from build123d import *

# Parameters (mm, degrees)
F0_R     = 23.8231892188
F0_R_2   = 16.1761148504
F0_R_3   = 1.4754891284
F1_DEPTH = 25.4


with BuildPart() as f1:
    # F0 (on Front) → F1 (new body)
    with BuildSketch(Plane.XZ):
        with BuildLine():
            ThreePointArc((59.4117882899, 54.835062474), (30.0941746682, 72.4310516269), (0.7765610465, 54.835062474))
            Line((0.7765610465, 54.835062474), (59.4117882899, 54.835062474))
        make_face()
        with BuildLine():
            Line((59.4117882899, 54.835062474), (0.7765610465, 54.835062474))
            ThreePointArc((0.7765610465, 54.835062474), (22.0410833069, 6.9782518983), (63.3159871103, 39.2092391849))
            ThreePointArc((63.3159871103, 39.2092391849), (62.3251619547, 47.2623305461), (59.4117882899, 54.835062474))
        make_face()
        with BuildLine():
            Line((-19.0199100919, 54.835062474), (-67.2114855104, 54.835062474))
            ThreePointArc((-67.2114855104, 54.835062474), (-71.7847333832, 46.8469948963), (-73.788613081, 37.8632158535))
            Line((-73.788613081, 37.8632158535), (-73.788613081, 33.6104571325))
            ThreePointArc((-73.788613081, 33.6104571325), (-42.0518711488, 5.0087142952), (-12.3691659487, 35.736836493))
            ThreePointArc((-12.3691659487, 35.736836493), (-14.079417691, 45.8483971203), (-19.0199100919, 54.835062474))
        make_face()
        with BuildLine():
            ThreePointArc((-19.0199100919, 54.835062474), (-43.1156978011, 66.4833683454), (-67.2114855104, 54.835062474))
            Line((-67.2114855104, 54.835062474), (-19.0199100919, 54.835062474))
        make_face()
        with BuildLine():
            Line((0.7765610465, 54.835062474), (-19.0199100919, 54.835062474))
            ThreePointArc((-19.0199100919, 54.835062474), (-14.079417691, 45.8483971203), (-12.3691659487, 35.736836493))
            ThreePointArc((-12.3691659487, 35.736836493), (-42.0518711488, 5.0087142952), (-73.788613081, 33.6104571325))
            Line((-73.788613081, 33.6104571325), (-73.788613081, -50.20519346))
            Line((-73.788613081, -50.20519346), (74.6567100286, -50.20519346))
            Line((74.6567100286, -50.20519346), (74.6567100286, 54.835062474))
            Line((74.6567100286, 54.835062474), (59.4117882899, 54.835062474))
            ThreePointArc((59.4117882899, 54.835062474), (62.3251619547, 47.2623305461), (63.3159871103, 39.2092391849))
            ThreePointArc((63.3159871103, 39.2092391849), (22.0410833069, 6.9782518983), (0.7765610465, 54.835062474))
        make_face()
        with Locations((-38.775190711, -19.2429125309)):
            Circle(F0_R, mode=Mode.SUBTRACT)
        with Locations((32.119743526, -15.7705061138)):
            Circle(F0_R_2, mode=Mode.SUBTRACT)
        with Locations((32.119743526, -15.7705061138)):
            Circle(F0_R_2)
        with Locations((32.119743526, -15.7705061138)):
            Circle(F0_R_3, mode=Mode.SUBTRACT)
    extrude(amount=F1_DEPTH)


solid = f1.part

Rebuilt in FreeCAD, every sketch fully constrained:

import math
import FreeCAD as App
import Part
import Sketcher
Q = App.Units.Quantity

doc = App.newDocument("Part")
body = doc.addObject("PartDesign::Body", "Body")

# Sketch on XZ plane
sketch1 = body.newObject("Sketcher::SketchObject", "Sketch")
sketch1.AttachmentSupport = (doc.getObject("XZ_Plane"), [""])
sketch1.MapMode = "FlatFace"
sketch1.addGeometry(Part.ArcOfCircle(Part.Circle(App.Vector(30.1, 39.2, 0), App.Vector(0, 0, 1), 33.2), math.radians(28), math.radians(152)), False)
sketch1.addGeometry(Part.LineSegment(App.Vector(0.8, 54.8, 0), App.Vector(-19, 54.8, 0)), False)
sketch1.addGeometry(Part.ArcOfCircle(Part.Circle(App.Vector(-43.1, 35.7, 0), App.Vector(0, 0, 1), 30.7), math.radians(38), math.radians(142)), False)
sketch1.addGeometry(Part.ArcOfCircle(Part.Circle(App.Vector(-43.1, 35.7, 0), App.Vector(0, 0, 1), 30.7), math.radians(142), math.radians(176)), False)
sketch1.addGeometry(Part.LineSegment(App.Vector(-73.8, 37.9, 0), App.Vector(-73.8, -50.2, 0)), False)
sketch1.addGeometry(Part.LineSegment(App.Vector(-73.8, -50.2, 0), App.Vector(74.7, -50.2, 0)), False)
sketch1.addGeometry(Part.LineSegment(App.Vector(74.7, -50.2, 0), App.Vector(74.7, 54.8, 0)), False)
sketch1.addGeometry(Part.LineSegment(App.Vector(74.7, 54.8, 0), App.Vector(59.4, 54.8, 0)), False)
sketch1.addGeometry(Part.Circle(App.Vector(-38.8, -19.2, 0), App.Vector(0, 0, 1), 23.8), False)
sketch1.addGeometry(Part.Circle(App.Vector(32.1, -15.8, 0), App.Vector(0, 0, 1), 1.5), False)
sketch1.addConstraint(Sketcher.Constraint("Coincident", 0, 2, 1, 1))
sketch1.addConstraint(Sketcher.Constraint("Coincident", 1, 2, 2, 1))
sketch1.addConstraint(Sketcher.Constraint("Tangent", 2, 2, 3, 1))
sketch1.addConstraint(Sketcher.Constraint("Coincident", 3, 2, 4, 1))
sketch1.addConstraint(Sketcher.Constraint("Coincident", 4, 2, 5, 1))
sketch1.addConstraint(Sketcher.Constraint("Coincident", 5, 2, 6, 1))
sketch1.addConstraint(Sketcher.Constraint("Coincident", 6, 2, 7, 1))
sketch1.addConstraint(Sketcher.Constraint("Coincident", 7, 2, 0, 1))
sketch1.addConstraint(Sketcher.Constraint("Horizontal", 1))
sketch1.addConstraint(Sketcher.Constraint("Vertical", 4))
sketch1.addConstraint(Sketcher.Constraint("Horizontal", 5))
sketch1.addConstraint(Sketcher.Constraint("Vertical", 6))
sketch1.addConstraint(Sketcher.Constraint("Horizontal", 7))
sketch1.addConstraint(Sketcher.Constraint("Equal", 2, 3))
sketch1.addConstraint(Sketcher.Constraint("Horizontal", 1, 2, 2, 2))
sketch1.addConstraint(Sketcher.Constraint("Horizontal", 2, 2, 6, 2))
sketch1.addConstraint(Sketcher.Constraint("Diameter", 8, 47.646378))
sketch1.addConstraint(Sketcher.Constraint("Diameter", 9, 2.950978))
sketch1.addConstraint(Sketcher.Constraint("Radius", 2, 30.746532))
sketch1.addConstraint(Sketcher.Constraint("Radius", 0, 33.221812))
sketch1.addConstraint(Sketcher.Constraint("DistanceX", 1, 2, 1, 1, 19.796471))
sketch1.addConstraint(Sketcher.Constraint("DistanceX", 7, 2, 7, 1, 15.244922))
sketch1.addConstraint(Sketcher.Constraint("DistanceY", 4, 2, 4, 1, 88.068409))
sketch1.addConstraint(Sketcher.Constraint("DistanceX", 8, 3, 5, 2, 113.431901))
sketch1.addConstraint(Sketcher.Constraint("DistanceX", 1, 2, 7, 2, 78.431698))
sketch1.addConstraint(Sketcher.Constraint("DistanceX", 5, 1, 5, 2, 148.445323))
sketch1.addConstraint(Sketcher.Constraint("DistanceY", 6, 1, 6, 2, 105.040256))
sketch1.addConstraint(Sketcher.Constraint("DistanceY", -1, 1, 0, 3, 39.209239))
sketch1.addConstraint(Sketcher.Constraint("DistanceX", 8, 3, -1, 1, 38.775191))
sketch1.addConstraint(Sketcher.Constraint("DistanceY", 8, 3, 2, 3, 54.979749))
sketch1.addConstraint(Sketcher.Constraint("DistanceX", 0, 3, 9, 3, 2.025569))
sketch1.addConstraint(Sketcher.Constraint("DistanceY", 9, 3, 0, 2, 70.605569))
pad1 = body.newObject("PartDesign::Pad", "Pad")
pad1.Profile = sketch1
pad1.Length = Q("1 in")

doc.recompute()
